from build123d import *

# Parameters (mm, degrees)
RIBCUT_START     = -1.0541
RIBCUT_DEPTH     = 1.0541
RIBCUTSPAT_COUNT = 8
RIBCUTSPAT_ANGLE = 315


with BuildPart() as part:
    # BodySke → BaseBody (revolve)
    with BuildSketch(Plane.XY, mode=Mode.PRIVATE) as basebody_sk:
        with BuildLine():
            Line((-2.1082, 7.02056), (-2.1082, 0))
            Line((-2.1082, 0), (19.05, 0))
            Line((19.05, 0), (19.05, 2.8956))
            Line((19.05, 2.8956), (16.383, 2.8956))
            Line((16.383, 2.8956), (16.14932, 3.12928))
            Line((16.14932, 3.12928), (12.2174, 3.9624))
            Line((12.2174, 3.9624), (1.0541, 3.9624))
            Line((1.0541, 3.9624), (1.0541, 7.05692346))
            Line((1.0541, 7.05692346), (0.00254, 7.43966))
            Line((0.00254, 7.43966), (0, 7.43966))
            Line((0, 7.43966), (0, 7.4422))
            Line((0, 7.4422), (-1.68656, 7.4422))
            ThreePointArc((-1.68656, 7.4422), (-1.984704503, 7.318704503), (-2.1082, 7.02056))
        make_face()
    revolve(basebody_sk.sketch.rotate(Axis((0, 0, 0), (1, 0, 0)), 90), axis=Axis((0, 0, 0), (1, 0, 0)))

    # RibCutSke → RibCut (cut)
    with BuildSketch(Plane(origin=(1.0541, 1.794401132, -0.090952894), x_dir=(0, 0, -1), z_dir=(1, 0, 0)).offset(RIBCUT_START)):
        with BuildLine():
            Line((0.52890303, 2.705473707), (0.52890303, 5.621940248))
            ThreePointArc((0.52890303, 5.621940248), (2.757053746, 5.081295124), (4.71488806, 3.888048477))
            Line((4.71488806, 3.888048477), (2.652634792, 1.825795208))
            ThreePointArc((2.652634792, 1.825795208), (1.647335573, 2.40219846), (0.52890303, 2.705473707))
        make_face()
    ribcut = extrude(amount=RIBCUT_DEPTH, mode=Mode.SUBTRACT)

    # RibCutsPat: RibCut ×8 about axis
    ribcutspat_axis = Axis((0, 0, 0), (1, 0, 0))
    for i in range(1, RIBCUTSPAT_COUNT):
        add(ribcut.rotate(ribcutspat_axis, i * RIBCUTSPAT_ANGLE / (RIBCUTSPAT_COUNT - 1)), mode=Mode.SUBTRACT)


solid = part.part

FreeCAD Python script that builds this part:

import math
import FreeCAD as App
import Part
import Sketcher

V = App.Vector
Q = App.Units.Quantity

doc = App.newDocument("Part")
body = doc.addObject("PartDesign::Body", "Body")

# Sketch on XY plane
sketch1 = body.newObject("Sketcher::SketchObject", "Sketch")
sketch1.AttachmentSupport = (doc.getObject("XY_Plane"), [""])
sketch1.MapMode = "FlatFace"
sketch1.addGeometry([
    Part.LineSegment(V(-2.1082, 7.02056, 0), V(-2.1082, 0, 0)),  # 0
    Part.LineSegment(V(-2.1082, 0, 0), V(19.05, 0, 0)),  # 1
    Part.LineSegment(V(19.05, 0, 0), V(19.05, 2.8956, 0)),  # 2
    Part.LineSegment(V(19.05, 2.8956, 0), V(16.383, 2.8956, 0)),  # 3
    Part.LineSegment(V(16.383, 2.8956, 0), V(16.14932, 3.12928, 0)),  # 4
    Part.LineSegment(V(16.14932, 3.12928, 0), V(12.2174, 3.9624, 0)),  # 5
    Part.LineSegment(V(12.2174, 3.9624, 0), V(1.0541, 3.9624, 0)),  # 6
    Part.LineSegment(V(1.0541, 3.9624, 0), V(1.0541, 7.056923, 0)),  # 7
    Part.LineSegment(V(1.0541, 7.056923, 0), V(0.00254, 7.43966, 0)),  # 8
    Part.LineSegment(V(0.00254, 7.43966, 0), V(0, 7.43966, 0)),  # 9
    Part.LineSegment(V(0, 7.43966, 0), V(0, 7.4422, 0)),  # 10
    Part.LineSegment(V(0, 7.4422, 0), V(-1.68656, 7.4422, 0)),  # 11
    Part.ArcOfCircle(Part.Circle(V(-1.68656, 7.02056, 0), V(0, 0, 1), 0.42164), math.radians(90), math.radians(180)),  # 12
], False)
sketch1.addConstraint([
    Sketcher.Constraint("Coincident", 0, 2, 1, 1),
    Sketcher.Constraint("Coincident", 1, 2, 2, 1),
    Sketcher.Constraint("Coincident", 2, 2, 3, 1),
    Sketcher.Constraint("Coincident", 3, 2, 4, 1),
    Sketcher.Constraint("Coincident", 4, 2, 5, 1),
    Sketcher.Constraint("Coincident", 5, 2, 6, 1),
    Sketcher.Constraint("Coincident", 6, 2, 7, 1),
    Sketcher.Constraint("Coincident", 7, 2, 8, 1),
    Sketcher.Constraint("Coincident", 8, 2, 9, 1),
    Sketcher.Constraint("Coincident", 9, 2, 10, 1),
    Sketcher.Constraint("Coincident", 10, 2, 11, 1),
    Sketcher.Constraint("Tangent", 11, 2, 12, 1),
    Sketcher.Constraint("Tangent", 12, 2, 0, 1),
    Sketcher.Constraint("Vertical", 0),
    Sketcher.Constraint("Horizontal", 1),
    Sketcher.Constraint("Vertical", 2),
    Sketcher.Constraint("Horizontal", 3),
    Sketcher.Constraint("Horizontal", 6),
    Sketcher.Constraint("Vertical", 7),
    Sketcher.Constraint("Horizontal", 9),
    Sketcher.Constraint("Vertical", 10),
    Sketcher.Constraint("Horizontal", 11),
    Sketcher.Constraint("PointOnObject", 0, 2, -1),
    Sketcher.Constraint("PointOnObject", 9, 2, -2),
    Sketcher.Constraint("Equal", 9, 10),
    Sketcher.Constraint("Angle", 4, Q("135 deg")),
    Sketcher.Constraint("Angle", 8, Q("160 deg")),
    Sketcher.Constraint("Radius", 12, Q("0.0166 in")),
    Sketcher.Constraint("DistanceX", 1, 1, 1, 2, Q("0.833 in")),
    Sketcher.Constraint("DistanceX", 3, 2, 3, 1, Q("0.105 in")),
    Sketcher.Constraint("DistanceY", 2, 1, 2, 2, Q("0.114 in")),
    Sketcher.Constraint("DistanceX", -1, 1, 1, 2, Q("0.75 in")),
    Sketcher.Constraint("DistanceX", 6, 2, 6, 1, Q("0.4395 in")),
    Sketcher.Constraint("DistanceX", 9, 2, 9, 1, Q("0.0001 in")),
    Sketcher.Constraint("DistanceY", 0, 2, 0, 1, Q("0.2764 in")),
    Sketcher.Constraint("DistanceX", -1, 1, 5, 2, Q("0.481 in")),
    Sketcher.Constraint("DistanceY", -1, 1, 5, 2, Q("0.156 in")),
    Sketcher.Constraint("DistanceX", -1, 1, 4, 2, Q("0.6358 in")),
])
revolution = body.newObject("PartDesign::Revolution", "Revolution")
revolution.Profile = sketch1
revolution.ReferenceAxis = (sketch1, ["H_Axis"])
revolution.Angle = 360

# Sketch on YZ plane
sketch2 = body.newObject("Sketcher::SketchObject", "Sketch001")
sketch2.AttachmentSupport = (doc.getObject("YZ_Plane"), [""])
sketch2.MapMode = "FlatFace"
sketch2.addGeometry([
    Part.LineSegment(V(7.416341, -0.619856, 0), V(4.499875, -0.619856, 0)),
    Part.ArcOfCircle(Part.Circle(V(0, 0, 0), V(0, 0, 1), 4.542367), math.radians(-37.156889), math.radians(-7.843111)),
    Part.LineSegment(V(3.620196, -2.743588, 0), V(5.68245, -4.805841, 0)),
    Part.ArcOfCircle(Part.Circle(V(0, 0, 0), V(0, 0, 1), 7.4422), math.radians(-40.222338), math.radians(-4.777662)),
], False)
sketch2.addConstraint([
    Sketcher.Constraint("Coincident", 0, 2, 1, 2),
    Sketcher.Constraint("Coincident", 1, 1, 2, 1),
    Sketcher.Constraint("Coincident", 2, 2, 3, 1),
    Sketcher.Constraint("Coincident", 3, 2, 0, 1),
    Sketcher.Constraint("Horizontal", 0),
    Sketcher.Constraint("Coincident", 1, 3, -1, 1),
    Sketcher.Constraint("Coincident", 3, 3, -1, 1),
    Sketcher.Constraint("Angle", 2, Q("-45 deg")),
    Sketcher.Constraint("Radius", 3, Q("0.293 in")),
    Sketcher.Constraint("Radius", 1, 4.542367),
    Sketcher.Constraint("DistanceX", 0, 2, 0, 1, 2.916467),
    Sketcher.Constraint("DistanceX", -1, 1, 2, 2, 5.68245),
])
pocket1 = body.newObject("PartDesign::Pocket", "Pocket")
pocket1.Profile = sketch2
pocket1.Length = Q("0.0415 in")
pocket1.Reversed = True
doc.recompute()

polarpattern = body.newObject("PartDesign::PolarPattern", "PolarPattern")
polarpattern.Originals = [pocket1]
polarpattern.Axis = (doc.getObject("X_Axis"), [""])
polarpattern.Angle = 360
polarpattern.Occurrences = 8
body.Tip = polarpattern

doc.recompute()
